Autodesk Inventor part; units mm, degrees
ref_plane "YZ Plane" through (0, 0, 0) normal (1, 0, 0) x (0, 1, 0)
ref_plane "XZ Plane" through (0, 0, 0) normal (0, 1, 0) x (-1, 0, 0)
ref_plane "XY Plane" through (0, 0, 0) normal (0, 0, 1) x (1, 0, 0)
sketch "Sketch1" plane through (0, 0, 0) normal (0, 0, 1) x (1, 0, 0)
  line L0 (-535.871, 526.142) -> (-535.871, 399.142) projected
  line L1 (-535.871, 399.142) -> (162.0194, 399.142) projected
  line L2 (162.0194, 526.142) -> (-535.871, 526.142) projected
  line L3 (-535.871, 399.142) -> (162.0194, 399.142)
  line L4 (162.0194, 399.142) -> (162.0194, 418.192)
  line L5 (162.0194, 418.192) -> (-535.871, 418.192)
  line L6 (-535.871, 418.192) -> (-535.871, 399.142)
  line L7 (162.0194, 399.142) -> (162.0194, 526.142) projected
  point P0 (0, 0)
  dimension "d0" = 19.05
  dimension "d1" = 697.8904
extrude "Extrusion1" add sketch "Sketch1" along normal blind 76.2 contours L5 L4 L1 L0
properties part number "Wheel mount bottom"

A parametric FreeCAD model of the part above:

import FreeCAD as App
import Part
import Sketcher

V = App.Vector
Q = App.Units.Quantity


def add_polygon(sketch, points):
    """Adds a closed chain of lines whose ends are joined by coincident constraints."""
    first, n = sketch.GeometryCount, len(points)
    for a, b in zip(points, points[1:] + points[:1]):
        sketch.addGeometry(Part.LineSegment(App.Vector(*a, 0), App.Vector(*b, 0)), False)
    for i in range(n):
        sketch.addConstraint(Sketcher.Constraint("Coincident", first + i, 2, first + (i + 1) % n, 1))

doc = App.newDocument("Part")
body = doc.addObject("PartDesign::Body", "Body")

# Sketch on XY plane
sketch1 = body.newObject("Sketcher::SketchObject", "Sketch")
sketch1.AttachmentSupport = (doc.getObject("XY_Plane"), [""])
sketch1.MapMode = "FlatFace"
add_polygon(sketch1, [(162, 418), (-536, 418), (-536, 399), (162, 399)])  # lines 0-3
sketch1.addConstraint(Sketcher.Constraint("Horizontal", 0))
sketch1.addConstraint(Sketcher.Constraint("Vertical", 1))
sketch1.addConstraint(Sketcher.Constraint("Horizontal", 2))
sketch1.addConstraint(Sketcher.Constraint("Vertical", 3))
sketch1.addConstraint(Sketcher.Constraint("DistanceY", 1, 2, 1, 1, Q("0.75 in")))
sketch1.addConstraint(Sketcher.Constraint("DistanceX", 0, 2, 0, 1, Q("27.476 in")))
sketch1.addConstraint(Sketcher.Constraint("DistanceX", 0, 2, -1, 1, 535.871))
sketch1.addConstraint(Sketcher.Constraint("DistanceY", -1, 1, 0, 2, 418.192))
pad1 = body.newObject("PartDesign::Pad", "Pad")
pad1.Profile = sketch1
pad1.Length = Q("3 in")

doc.recompute()
